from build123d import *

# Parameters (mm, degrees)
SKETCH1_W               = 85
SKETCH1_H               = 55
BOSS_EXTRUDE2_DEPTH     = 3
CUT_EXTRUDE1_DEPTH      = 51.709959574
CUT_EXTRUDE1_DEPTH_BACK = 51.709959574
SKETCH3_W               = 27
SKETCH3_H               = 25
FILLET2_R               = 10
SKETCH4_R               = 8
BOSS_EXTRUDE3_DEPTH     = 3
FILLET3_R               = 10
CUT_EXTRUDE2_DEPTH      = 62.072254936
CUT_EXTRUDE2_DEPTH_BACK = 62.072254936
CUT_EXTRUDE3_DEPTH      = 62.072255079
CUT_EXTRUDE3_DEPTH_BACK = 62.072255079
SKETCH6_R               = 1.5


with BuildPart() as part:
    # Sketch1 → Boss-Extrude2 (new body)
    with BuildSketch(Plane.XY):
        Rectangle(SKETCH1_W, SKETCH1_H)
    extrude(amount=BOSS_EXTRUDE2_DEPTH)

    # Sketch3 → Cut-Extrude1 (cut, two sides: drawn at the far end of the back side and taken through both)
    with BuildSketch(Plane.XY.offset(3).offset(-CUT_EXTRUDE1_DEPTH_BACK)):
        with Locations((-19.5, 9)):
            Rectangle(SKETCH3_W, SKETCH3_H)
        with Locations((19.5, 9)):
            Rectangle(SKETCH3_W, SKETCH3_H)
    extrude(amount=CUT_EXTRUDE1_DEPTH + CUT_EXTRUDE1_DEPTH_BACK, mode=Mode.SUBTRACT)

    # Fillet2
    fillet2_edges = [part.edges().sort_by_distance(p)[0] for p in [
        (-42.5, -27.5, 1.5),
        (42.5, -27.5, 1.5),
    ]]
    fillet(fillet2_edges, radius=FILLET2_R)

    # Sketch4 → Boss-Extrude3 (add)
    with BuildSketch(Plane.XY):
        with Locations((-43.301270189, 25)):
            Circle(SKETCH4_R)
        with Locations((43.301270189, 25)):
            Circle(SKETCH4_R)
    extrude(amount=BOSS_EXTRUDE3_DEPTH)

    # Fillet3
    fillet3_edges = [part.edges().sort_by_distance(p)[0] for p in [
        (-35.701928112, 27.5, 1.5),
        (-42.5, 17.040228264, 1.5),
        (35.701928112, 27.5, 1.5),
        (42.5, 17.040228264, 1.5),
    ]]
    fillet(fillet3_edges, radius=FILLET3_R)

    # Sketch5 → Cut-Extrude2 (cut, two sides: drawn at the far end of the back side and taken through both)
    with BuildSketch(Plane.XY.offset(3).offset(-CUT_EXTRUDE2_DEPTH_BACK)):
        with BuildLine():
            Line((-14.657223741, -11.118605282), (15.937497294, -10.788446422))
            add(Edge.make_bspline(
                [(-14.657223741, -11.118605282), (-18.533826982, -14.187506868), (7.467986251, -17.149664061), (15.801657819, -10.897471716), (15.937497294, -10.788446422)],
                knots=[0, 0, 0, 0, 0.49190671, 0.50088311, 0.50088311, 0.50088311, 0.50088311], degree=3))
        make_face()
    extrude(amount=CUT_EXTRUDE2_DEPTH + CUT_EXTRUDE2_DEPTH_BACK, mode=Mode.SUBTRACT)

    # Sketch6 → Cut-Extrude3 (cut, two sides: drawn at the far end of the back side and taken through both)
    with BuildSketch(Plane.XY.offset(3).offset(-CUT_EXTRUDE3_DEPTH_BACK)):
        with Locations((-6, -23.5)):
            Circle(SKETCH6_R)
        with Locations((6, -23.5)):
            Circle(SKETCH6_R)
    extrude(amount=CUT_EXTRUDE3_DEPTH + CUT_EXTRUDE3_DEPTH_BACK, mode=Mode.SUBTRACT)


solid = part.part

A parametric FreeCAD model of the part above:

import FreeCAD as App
import Part
import Sketcher
Q = App.Units.Quantity


def edges_at(feature, points):
    """Names of the edges that pass closest to the given points."""
    edges = feature.Shape.Edges
    near = lambda p: min(range(len(edges)), key=lambda i: edges[i].distToShape(Part.Vertex(*p))[0])
    return sorted({f"Edge{near(p) + 1}" for p in points})


def add_polygon(sketch, points):
    """Adds a closed chain of lines whose ends are joined by coincident constraints."""
    first, n = sketch.GeometryCount, len(points)
    for a, b in zip(points, points[1:] + points[:1]):
        sketch.addGeometry(Part.LineSegment(App.Vector(*a, 0), App.Vector(*b, 0)), False)
    for i in range(n):
        sketch.addConstraint(Sketcher.Constraint("Coincident", first + i, 2, first + (i + 1) % n, 1))

doc = App.newDocument("Part")
body = doc.addObject("PartDesign::Body", "Body")

# Sketch on XY plane
sketch1 = doc.addObject("Sketcher::SketchObject", "Sketch")
body.addObject(sketch1)
sketch1.AttachmentSupport = (doc.XY_Plane, [""])
sketch1.MapMode = "FlatFace"
add_polygon(sketch1, [(-42, 28), (-42, -28), (42, -28), (42, 28)])  # lines 0-3
sketch1.addConstraint(Sketcher.Constraint("Vertical", 0))
sketch1.addConstraint(Sketcher.Constraint("Horizontal", 1))
sketch1.addConstraint(Sketcher.Constraint("Vertical", 2))
sketch1.addConstraint(Sketcher.Constraint("Horizontal", 3))
sketch1.addConstraint(Sketcher.Constraint("Symmetric", 0, 2, 2, 2, -1, 1))
sketch1.addConstraint(Sketcher.Constraint("DistanceX", 1, 1, 1, 2, Q("85 mm")))
sketch1.addConstraint(Sketcher.Constraint("DistanceY", 0, 2, 0, 1, Q("55 mm")))
pad1 = doc.addObject("PartDesign::Pad", "Pad")
body.addObject(pad1)
pad1.Profile = sketch1
pad1.Length = 3

# Sketch on XY plane
sketch2 = doc.addObject("Sketcher::SketchObject", "Sketch001")
body.addObject(sketch2)
sketch2.AttachmentSupport = (doc.XY_Plane, [""])
sketch2.MapMode = "FlatFace"
sketch2.AttachmentOffset = App.Placement(App.Vector(0, 0, 3), App.Rotation())
add_polygon(sketch2, [(-33, 22), (-33, -4), (-6, -4), (-6, 22)])  # lines 0-3
add_polygon(sketch2, [(6, 22), (6, -4), (33, -4), (33, 22)])  # lines 4-7
sketch2.addConstraint(Sketcher.Constraint("Vertical", 0))
sketch2.addConstraint(Sketcher.Constraint("Horizontal", 1))
sketch2.addConstraint(Sketcher.Constraint("Vertical", 2))
sketch2.addConstraint(Sketcher.Constraint("Horizontal", 3))
sketch2.addConstraint(Sketcher.Constraint("Vertical", 4))
sketch2.addConstraint(Sketcher.Constraint("Horizontal", 5))
sketch2.addConstraint(Sketcher.Constraint("Vertical", 6))
sketch2.addConstraint(Sketcher.Constraint("Horizontal", 7))
sketch2.addConstraint(Sketcher.Constraint("Symmetric", 1, 2, 4, 2, -2))
sketch2.addConstraint(Sketcher.Constraint("Symmetric", 3, 2, 6, 2, -2))
sketch2.addConstraint(Sketcher.Constraint("DistanceX", 1, 1, 1, 2, Q("27 mm")))
sketch2.addConstraint(Sketcher.Constraint("DistanceY", 0, 2, 0, 1, Q("25 mm")))
sketch2.addConstraint(Sketcher.Constraint("DistanceX", 0, 2, -1, 1, Q("33 mm")))
sketch2.addConstraint(Sketcher.Constraint("DistanceY", 0, 2, -1, 1, Q("3.5 mm")))
pocket1 = doc.addObject("PartDesign::Pocket", "Pocket")
body.addObject(pocket1)
pocket1.Profile = sketch2
pocket1.Type = "ThroughAll"
pocket1.Midplane = True
doc.recompute()

fillet = doc.addObject("PartDesign::Fillet", "Fillet")
body.addObject(fillet)
fillet.Base = (pocket1, edges_at(pocket1, [(-42.5, -27.5, 1.5), (42.5, -27.5, 1.5)]))
fillet.Radius = 10

# Sketch on XY plane
sketch3 = doc.addObject("Sketcher::SketchObject", "Sketch002")
body.addObject(sketch3)
sketch3.AttachmentSupport = (doc.XY_Plane, [""])
sketch3.MapMode = "FlatFace"
sketch3.addGeometry(Part.Circle(App.Vector(-43, 25, 0), App.Vector(0, 0, 1), 8), False)
sketch3.addGeometry(Part.Circle(App.Vector(43, 25, 0), App.Vector(0, 0, 1), 8), False)
sketch3.addConstraint(Sketcher.Constraint("Equal", 0, 1))
sketch3.addConstraint(Sketcher.Constraint("Symmetric", 0, 3, 1, 3, -2))
sketch3.addConstraint(Sketcher.Constraint("Diameter", 0, Q("16 mm")))
sketch3.addConstraint(Sketcher.Constraint("DistanceY", -1, 1, 0, 3, Q("25 mm")))
sketch3.addConstraint(Sketcher.Constraint("DistanceX", 0, 3, -1, 1, Q("43.30127 mm")))
pad2 = doc.addObject("PartDesign::Pad", "Pad001")
body.addObject(pad2)
pad2.Profile = sketch3
pad2.Length = 3
doc.recompute()

fillet2 = doc.addObject("PartDesign::Fillet", "Fillet001")
body.addObject(fillet2)
fillet2.Base = (pad2, edges_at(pad2, [
    (-35.702, 27.5, 1.5),
    (-42.5, 17.04, 1.5),
    (35.702, 27.5, 1.5),
    (42.5, 17.04, 1.5),
]))
fillet2.Radius = 10

# Sketch on XY plane
sketch4 = doc.addObject("Sketcher::SketchObject", "Sketch003")
body.addObject(sketch4)
sketch4.AttachmentSupport = (doc.XY_Plane, [""])
sketch4.MapMode = "FlatFace"
sketch4.AttachmentOffset = App.Placement(App.Vector(0, 0, 3), App.Rotation())
sketch4.addGeometry(Part.LineSegment(App.Vector(15.937497, -10.788446, 0), App.Vector(-14.657224, -11.118605, 0)), False)
sketch4.addGeometry(Part.BSplineCurve([App.Vector(-14.657224, -11.118605, 0), App.Vector(-18.533827, -14.187507, 0), App.Vector(7.467986, -17.149664, 0), App.Vector(15.801658, -10.897472, 0), App.Vector(15.937497, -10.788446, 0)], [4, 1, 4], [0, 0.49190671, 0.50088311], False, 3, [1, 1, 1, 1, 1], False), False)
sketch4.addConstraint(Sketcher.Constraint("Block", 1))
sketch4.addConstraint(Sketcher.Constraint("Coincident", 0, 1, 1, 2))
sketch4.addConstraint(Sketcher.Constraint("Coincident", 1, 1, 0, 2))
pocket2 = doc.addObject("PartDesign::Pocket", "Pocket001")
body.addObject(pocket2)
pocket2.Profile = sketch4
pocket2.Type = "ThroughAll"
pocket2.Midplane = True

# Sketch on XY plane
sketch5 = doc.addObject("Sketcher::SketchObject", "Sketch004")
body.addObject(sketch5)
sketch5.AttachmentSupport = (doc.XY_Plane, [""])
sketch5.MapMode = "FlatFace"
sketch5.AttachmentOffset = App.Placement(App.Vector(0, 0, 3), App.Rotation())
sketch5.addGeometry(Part.Circle(App.Vector(-6, -23.5, 0), App.Vector(0, 0, 1), 1.5), False)
sketch5.addGeometry(Part.Circle(App.Vector(6, -23.5, 0), App.Vector(0, 0, 1), 1.5), False)
sketch5.addConstraint(Sketcher.Constraint("Equal", 0, 1))
sketch5.addConstraint(Sketcher.Constraint("Symmetric", 0, 3, 1, 3, -2))
sketch5.addConstraint(Sketcher.Constraint("Diameter", 0, Q("3 mm")))
sketch5.addConstraint(Sketcher.Constraint("DistanceX", 0, 3, -1, 1, Q("6 mm")))
sketch5.addConstraint(Sketcher.Constraint("DistanceY", 0, 3, -1, 1, Q("23.5 mm")))
pocket3 = doc.addObject("PartDesign::Pocket", "Pocket002")
body.addObject(pocket3)
pocket3.Profile = sketch5
pocket3.Type = "ThroughAll"
pocket3.Midplane = True

doc.recompute()
